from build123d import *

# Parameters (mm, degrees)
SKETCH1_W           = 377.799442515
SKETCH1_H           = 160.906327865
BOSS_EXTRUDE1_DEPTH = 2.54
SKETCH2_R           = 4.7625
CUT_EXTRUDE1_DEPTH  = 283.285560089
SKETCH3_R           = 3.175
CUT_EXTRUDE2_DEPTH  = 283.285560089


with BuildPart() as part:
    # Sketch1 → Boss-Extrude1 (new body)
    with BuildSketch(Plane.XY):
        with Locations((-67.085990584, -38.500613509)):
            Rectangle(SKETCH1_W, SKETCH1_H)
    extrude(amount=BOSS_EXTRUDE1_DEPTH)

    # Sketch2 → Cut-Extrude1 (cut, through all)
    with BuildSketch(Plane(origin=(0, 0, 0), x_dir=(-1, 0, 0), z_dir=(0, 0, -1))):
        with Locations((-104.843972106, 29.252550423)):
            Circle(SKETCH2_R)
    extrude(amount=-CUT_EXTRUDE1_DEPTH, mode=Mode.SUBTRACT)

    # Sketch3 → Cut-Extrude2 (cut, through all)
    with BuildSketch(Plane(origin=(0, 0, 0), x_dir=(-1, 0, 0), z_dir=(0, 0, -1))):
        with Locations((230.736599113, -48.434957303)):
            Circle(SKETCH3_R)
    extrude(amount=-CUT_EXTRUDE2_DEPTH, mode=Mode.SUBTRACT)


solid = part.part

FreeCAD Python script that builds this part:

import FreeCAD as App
import Part
import Sketcher
Q = App.Units.Quantity

doc = App.newDocument("Part")
body = doc.addObject("PartDesign::Body", "Body")

sketch1 = body.newObject("Sketcher::SketchObject", "Sketch")
sketch1.AttachmentSupport = (doc.getObject("XY_Plane"), [""])
sketch1.MapMode = "FlatFace"
sketch1.addGeometry([
    Part.LineSegment(App.Vector(-256, 42, 0), App.Vector(-256, -119, 0)),
    Part.LineSegment(App.Vector(-256, -119, 0), App.Vector(122, -119, 0)),
    Part.LineSegment(App.Vector(122, -119, 0), App.Vector(122, 42, 0)),
    Part.LineSegment(App.Vector(122, 42, 0), App.Vector(-256, 42, 0)),
], False)
sketch1.addConstraint([
    Sketcher.Constraint("Coincident", 0, 2, 1, 1),
    Sketcher.Constraint("Coincident", 1, 2, 2, 1),
    Sketcher.Constraint("Coincident", 2, 2, 3, 1),
    Sketcher.Constraint("Coincident", 3, 2, 0, 1),
    Sketcher.Constraint("Vertical", 0),
    Sketcher.Constraint("Horizontal", 1),
    Sketcher.Constraint("Vertical", 2),
    Sketcher.Constraint("Horizontal", 3),
    Sketcher.Constraint("DistanceX", 1, 1, 1, 2, Q("377.799443 mm")),
    Sketcher.Constraint("DistanceY", 0, 2, 0, 1, Q("160.906328 mm")),
    Sketcher.Constraint("DistanceX", 0, 2, -1, 1, Q("255.985712 mm")),
    Sketcher.Constraint("DistanceY", -1, 1, 2, 2, Q("41.95255 mm")),
])
pad1 = body.newObject("PartDesign::Pad", "Pad")
pad1.Profile = sketch1
pad1.Length = Q("0.1 in")

sketch2 = body.newObject("Sketcher::SketchObject", "Sketch001")
sketch2.AttachmentSupport = (doc.getObject("XY_Plane"), [""])
sketch2.MapMode = "FlatFace"
sketch2.addGeometry(Part.Circle(App.Vector(104.8, 29.3, 0), App.Vector(0, 0, 1), 4.8), False)
sketch2.addConstraint([
    Sketcher.Constraint("Diameter", 0, Q("0.375 in")),
    Sketcher.Constraint("DistanceY", -1, 1, 0, 3, Q("29.25255 mm")),
    Sketcher.Constraint("DistanceX", -1, 1, 0, 3, Q("104.843972 mm")),
])
pocket1 = body.newObject("PartDesign::Pocket", "Pocket")
pocket1.Profile = sketch2
pocket1.Type = "ThroughAll"
pocket1.Reversed = True

sketch3 = body.newObject("Sketcher::SketchObject", "Sketch002")
sketch3.AttachmentSupport = (doc.getObject("XY_Plane"), [""])
sketch3.MapMode = "FlatFace"
sketch3.addGeometry(Part.Circle(App.Vector(-230.7, -48.4, 0), App.Vector(0, 0, 1), 3.2), False)
sketch3.addConstraint([
    Sketcher.Constraint("Diameter", 0, Q("0.25 in")),
    Sketcher.Constraint("DistanceX", 0, 3, -1, 1, Q("230.736599 mm")),
    Sketcher.Constraint("DistanceY", 0, 3, -1, 1, Q("48.434957 mm")),
])
pocket2 = body.newObject("PartDesign::Pocket", "Pocket001")
pocket2.Profile = sketch3
pocket2.Type = "ThroughAll"
pocket2.Reversed = True

doc.recompute()
